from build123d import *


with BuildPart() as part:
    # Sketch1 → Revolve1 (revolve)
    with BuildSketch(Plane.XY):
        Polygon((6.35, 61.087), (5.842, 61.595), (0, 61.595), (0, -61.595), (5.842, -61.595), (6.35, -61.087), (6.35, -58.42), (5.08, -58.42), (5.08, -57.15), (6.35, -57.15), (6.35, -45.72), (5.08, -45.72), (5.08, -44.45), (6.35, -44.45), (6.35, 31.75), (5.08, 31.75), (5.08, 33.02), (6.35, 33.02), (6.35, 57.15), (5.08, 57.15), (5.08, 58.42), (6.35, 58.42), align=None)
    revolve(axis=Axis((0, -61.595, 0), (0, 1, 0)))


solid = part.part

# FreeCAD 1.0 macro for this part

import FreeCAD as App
import Part
import Sketcher

V = App.Vector
Q = App.Units.Quantity


def add_polygon(sketch, points):
    """Adds a closed chain of lines whose ends are joined by coincident constraints."""
    first, n = sketch.GeometryCount, len(points)
    for a, b in zip(points, points[1:] + points[:1]):
        sketch.addGeometry(Part.LineSegment(App.Vector(*a, 0), App.Vector(*b, 0)), False)
    for i in range(n):
        sketch.addConstraint(Sketcher.Constraint("Coincident", first + i, 2, first + (i + 1) % n, 1))

doc = App.newDocument("Part")
body = doc.addObject("PartDesign::Body", "Body")

# Sketch on XY plane
sketch1 = body.newObject("Sketcher::SketchObject", "Sketch")
sketch1.AttachmentSupport = (doc.getObject("XY_Plane"), [""])
sketch1.MapMode = "FlatFace"
add_polygon(sketch1, [(6.3, 61.1), (5.8, 61.6), (0, 61.6), (0, -61.6), (5.8, -61.6), (6.3, -61.1), (6.3, -58.4), (5.1, -58.4), (5.1, -57.1), (6.3, -57.1), (6.3, -45.7), (5.1, -45.7), (5.1, -44.5), (6.3, -44.5), (6.3, 31.8), (5.1, 31.8), (5.1, 33), (6.3, 33), (6.3, 57.1), (5.1, 57.1), (5.1, 58.4), (6.3, 58.4)])  # lines 0-21
sketch1.addConstraint([
    Sketcher.Constraint("Horizontal", 1),
    Sketcher.Constraint("Vertical", 2),
    Sketcher.Constraint("Horizontal", 3),
    Sketcher.Constraint("Vertical", 5),
    Sketcher.Constraint("Horizontal", 6),
    Sketcher.Constraint("Vertical", 7),
    Sketcher.Constraint("Horizontal", 8),
    Sketcher.Constraint("Vertical", 9),
    Sketcher.Constraint("Horizontal", 10),
    Sketcher.Constraint("Vertical", 11),
    Sketcher.Constraint("Horizontal", 12),
    Sketcher.Constraint("Vertical", 13),
    Sketcher.Constraint("Horizontal", 14),
    Sketcher.Constraint("Vertical", 15),
    Sketcher.Constraint("Horizontal", 16),
    Sketcher.Constraint("Vertical", 17),
    Sketcher.Constraint("Horizontal", 18),
    Sketcher.Constraint("Vertical", 19),
    Sketcher.Constraint("Horizontal", 20),
    Sketcher.Constraint("Vertical", 21),
    Sketcher.Constraint("Symmetric", 1, 2, 2, 2, -1, 1),
    Sketcher.Constraint("Symmetric", 8, 2, 17, 2, -1),
    Sketcher.Constraint("Symmetric", 6, 2, 19, 2, -1),
    Sketcher.Constraint("Symmetric", 4, 2, 21, 2, -1),
    Sketcher.Constraint("Perpendicular", 0, 4),
    Sketcher.Constraint("Vertical", 0, 2, 3, 2),
    Sketcher.Constraint("Vertical", 5, 2, 8, 2),
    Sketcher.Constraint("Vertical", 7, 2, 10, 2),
    Sketcher.Constraint("Vertical", 9, 2, 12, 2),
    Sketcher.Constraint("Vertical", 11, 2, 14, 2),
    Sketcher.Constraint("Equal", 20, 7),
    Sketcher.Constraint("Equal", 7, 11),
    Sketcher.Constraint("Equal", 11, 15),
    Sketcher.Constraint("DistanceY", 13, 1, 13, 2, Q("3 in")),
    Sketcher.Constraint("DistanceY", 13, 2, 17, 2, Q("1 in")),
    Sketcher.Constraint("DistanceX", 1, 2, 1, 1, Q("0.23 in")),
    Sketcher.Constraint("DistanceX", 6, 2, 6, 1, Q("0.05 in")),
    Sketcher.Constraint("DistanceY", 2, 2, 2, 1, Q("4.85 in")),
    Sketcher.Constraint("DistanceY", 9, 1, 9, 2, Q("0.45 in")),
    Sketcher.Constraint("DistanceX", -1, 1, 6, 2, Q("0.2 in")),
])
revolution = body.newObject("PartDesign::Revolution", "Revolution")
revolution.Profile = sketch1
revolution.ReferenceAxis = (sketch1, ["V_Axis"])
revolution.Angle = 360

doc.recompute()
